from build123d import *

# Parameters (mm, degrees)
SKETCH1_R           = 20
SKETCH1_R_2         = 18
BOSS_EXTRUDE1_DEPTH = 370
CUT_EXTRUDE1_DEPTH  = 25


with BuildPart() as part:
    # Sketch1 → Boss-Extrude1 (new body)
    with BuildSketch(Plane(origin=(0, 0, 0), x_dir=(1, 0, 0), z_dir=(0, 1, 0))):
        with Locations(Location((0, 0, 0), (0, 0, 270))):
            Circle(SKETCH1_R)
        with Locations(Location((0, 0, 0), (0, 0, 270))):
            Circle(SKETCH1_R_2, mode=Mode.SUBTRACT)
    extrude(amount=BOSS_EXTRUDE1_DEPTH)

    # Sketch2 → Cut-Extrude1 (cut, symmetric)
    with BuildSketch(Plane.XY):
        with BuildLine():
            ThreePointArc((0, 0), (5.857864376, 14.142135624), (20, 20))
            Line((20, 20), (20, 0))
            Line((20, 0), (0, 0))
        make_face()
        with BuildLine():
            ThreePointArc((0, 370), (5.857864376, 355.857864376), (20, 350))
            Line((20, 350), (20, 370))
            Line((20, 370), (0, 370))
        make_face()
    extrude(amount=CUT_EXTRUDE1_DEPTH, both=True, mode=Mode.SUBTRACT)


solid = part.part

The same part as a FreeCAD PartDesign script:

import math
import FreeCAD as App
import Part
import Sketcher
from FreeCAD import Vector

doc = App.newDocument("Part")
body = doc.addObject("PartDesign::Body", "Body")

# Sketch on XZ plane
sketch1 = body.newObject("Sketcher::SketchObject", "Sketch")
sketch1.AttachmentSupport = (doc.getObject("XZ_Plane"), [""])
sketch1.MapMode = "FlatFace"
sketch1.addGeometry([
    Part.Circle(Vector(0, 0, 0), Vector(0, 0, 1), 20),
    Part.Circle(Vector(0, 0, 0), Vector(0, 0, 1), 18),
], False)
sketch1.addConstraint([
    Sketcher.Constraint("Coincident", 0, 3, -1, 1),
    Sketcher.Constraint("Coincident", 1, 3, -1, 1),
    Sketcher.Constraint("Diameter", 0, 40.0),
    Sketcher.Constraint("Diameter", 1, 36.0),
])
pad1 = body.newObject("PartDesign::Pad", "Pad")
pad1.Profile = sketch1
pad1.Length = 370
pad1.Reversed = True

# Sketch on XY plane
sketch2 = body.newObject("Sketcher::SketchObject", "Sketch001")
sketch2.AttachmentSupport = (doc.getObject("XY_Plane"), [""])
sketch2.MapMode = "FlatFace"
sketch2.addGeometry([
    Part.ArcOfCircle(Part.Circle(Vector(20, 0, 0), Vector(0, 0, 1), 20), math.radians(90), math.radians(180)),  # 0
    Part.LineSegment(Vector(0, 0, 0), Vector(20, 0, 0)),  # 1
    Part.LineSegment(Vector(20, 0, 0), Vector(20, 20, 0)),  # 2
    Part.ArcOfCircle(Part.Circle(Vector(20, 370, 0), Vector(0, 0, 1), 20), math.radians(180), math.radians(270)),  # 3
    Part.LineSegment(Vector(20, 350, 0), Vector(20, 370, 0)),  # 4
    Part.LineSegment(Vector(20, 370, 0), Vector(0, 370, 0)),  # 5
], False)
sketch2.addConstraint([
    Sketcher.Constraint("Coincident", 0, 2, 1, 1),
    Sketcher.Constraint("Coincident", 1, 2, 2, 1),
    Sketcher.Constraint("Coincident", 2, 2, 0, 1),
    Sketcher.Constraint("Coincident", 3, 2, 4, 1),
    Sketcher.Constraint("Coincident", 4, 2, 5, 1),
    Sketcher.Constraint("Coincident", 5, 2, 3, 1),
    Sketcher.Constraint("Horizontal", 1),
    Sketcher.Constraint("Vertical", 2),
    Sketcher.Constraint("Vertical", 4),
    Sketcher.Constraint("Horizontal", 5),
    Sketcher.Constraint("Coincident", 0, 2, -1, 1),
    Sketcher.Constraint("Coincident", 1, 2, 0, 3),
    Sketcher.Constraint("Coincident", 4, 2, 3, 3),
    Sketcher.Constraint("Equal", 0, 3),
    Sketcher.Constraint("PointOnObject", 5, 2, -2),
    Sketcher.Constraint("Radius", 0, 20.0),
    Sketcher.Constraint("DistanceY", -1, 1, 3, 3, 370.0),
])
pocket1 = body.newObject("PartDesign::Pocket", "Pocket")
pocket1.Profile = sketch2
pocket1.Length = 50
pocket1.Midplane = True

doc.recompute()
